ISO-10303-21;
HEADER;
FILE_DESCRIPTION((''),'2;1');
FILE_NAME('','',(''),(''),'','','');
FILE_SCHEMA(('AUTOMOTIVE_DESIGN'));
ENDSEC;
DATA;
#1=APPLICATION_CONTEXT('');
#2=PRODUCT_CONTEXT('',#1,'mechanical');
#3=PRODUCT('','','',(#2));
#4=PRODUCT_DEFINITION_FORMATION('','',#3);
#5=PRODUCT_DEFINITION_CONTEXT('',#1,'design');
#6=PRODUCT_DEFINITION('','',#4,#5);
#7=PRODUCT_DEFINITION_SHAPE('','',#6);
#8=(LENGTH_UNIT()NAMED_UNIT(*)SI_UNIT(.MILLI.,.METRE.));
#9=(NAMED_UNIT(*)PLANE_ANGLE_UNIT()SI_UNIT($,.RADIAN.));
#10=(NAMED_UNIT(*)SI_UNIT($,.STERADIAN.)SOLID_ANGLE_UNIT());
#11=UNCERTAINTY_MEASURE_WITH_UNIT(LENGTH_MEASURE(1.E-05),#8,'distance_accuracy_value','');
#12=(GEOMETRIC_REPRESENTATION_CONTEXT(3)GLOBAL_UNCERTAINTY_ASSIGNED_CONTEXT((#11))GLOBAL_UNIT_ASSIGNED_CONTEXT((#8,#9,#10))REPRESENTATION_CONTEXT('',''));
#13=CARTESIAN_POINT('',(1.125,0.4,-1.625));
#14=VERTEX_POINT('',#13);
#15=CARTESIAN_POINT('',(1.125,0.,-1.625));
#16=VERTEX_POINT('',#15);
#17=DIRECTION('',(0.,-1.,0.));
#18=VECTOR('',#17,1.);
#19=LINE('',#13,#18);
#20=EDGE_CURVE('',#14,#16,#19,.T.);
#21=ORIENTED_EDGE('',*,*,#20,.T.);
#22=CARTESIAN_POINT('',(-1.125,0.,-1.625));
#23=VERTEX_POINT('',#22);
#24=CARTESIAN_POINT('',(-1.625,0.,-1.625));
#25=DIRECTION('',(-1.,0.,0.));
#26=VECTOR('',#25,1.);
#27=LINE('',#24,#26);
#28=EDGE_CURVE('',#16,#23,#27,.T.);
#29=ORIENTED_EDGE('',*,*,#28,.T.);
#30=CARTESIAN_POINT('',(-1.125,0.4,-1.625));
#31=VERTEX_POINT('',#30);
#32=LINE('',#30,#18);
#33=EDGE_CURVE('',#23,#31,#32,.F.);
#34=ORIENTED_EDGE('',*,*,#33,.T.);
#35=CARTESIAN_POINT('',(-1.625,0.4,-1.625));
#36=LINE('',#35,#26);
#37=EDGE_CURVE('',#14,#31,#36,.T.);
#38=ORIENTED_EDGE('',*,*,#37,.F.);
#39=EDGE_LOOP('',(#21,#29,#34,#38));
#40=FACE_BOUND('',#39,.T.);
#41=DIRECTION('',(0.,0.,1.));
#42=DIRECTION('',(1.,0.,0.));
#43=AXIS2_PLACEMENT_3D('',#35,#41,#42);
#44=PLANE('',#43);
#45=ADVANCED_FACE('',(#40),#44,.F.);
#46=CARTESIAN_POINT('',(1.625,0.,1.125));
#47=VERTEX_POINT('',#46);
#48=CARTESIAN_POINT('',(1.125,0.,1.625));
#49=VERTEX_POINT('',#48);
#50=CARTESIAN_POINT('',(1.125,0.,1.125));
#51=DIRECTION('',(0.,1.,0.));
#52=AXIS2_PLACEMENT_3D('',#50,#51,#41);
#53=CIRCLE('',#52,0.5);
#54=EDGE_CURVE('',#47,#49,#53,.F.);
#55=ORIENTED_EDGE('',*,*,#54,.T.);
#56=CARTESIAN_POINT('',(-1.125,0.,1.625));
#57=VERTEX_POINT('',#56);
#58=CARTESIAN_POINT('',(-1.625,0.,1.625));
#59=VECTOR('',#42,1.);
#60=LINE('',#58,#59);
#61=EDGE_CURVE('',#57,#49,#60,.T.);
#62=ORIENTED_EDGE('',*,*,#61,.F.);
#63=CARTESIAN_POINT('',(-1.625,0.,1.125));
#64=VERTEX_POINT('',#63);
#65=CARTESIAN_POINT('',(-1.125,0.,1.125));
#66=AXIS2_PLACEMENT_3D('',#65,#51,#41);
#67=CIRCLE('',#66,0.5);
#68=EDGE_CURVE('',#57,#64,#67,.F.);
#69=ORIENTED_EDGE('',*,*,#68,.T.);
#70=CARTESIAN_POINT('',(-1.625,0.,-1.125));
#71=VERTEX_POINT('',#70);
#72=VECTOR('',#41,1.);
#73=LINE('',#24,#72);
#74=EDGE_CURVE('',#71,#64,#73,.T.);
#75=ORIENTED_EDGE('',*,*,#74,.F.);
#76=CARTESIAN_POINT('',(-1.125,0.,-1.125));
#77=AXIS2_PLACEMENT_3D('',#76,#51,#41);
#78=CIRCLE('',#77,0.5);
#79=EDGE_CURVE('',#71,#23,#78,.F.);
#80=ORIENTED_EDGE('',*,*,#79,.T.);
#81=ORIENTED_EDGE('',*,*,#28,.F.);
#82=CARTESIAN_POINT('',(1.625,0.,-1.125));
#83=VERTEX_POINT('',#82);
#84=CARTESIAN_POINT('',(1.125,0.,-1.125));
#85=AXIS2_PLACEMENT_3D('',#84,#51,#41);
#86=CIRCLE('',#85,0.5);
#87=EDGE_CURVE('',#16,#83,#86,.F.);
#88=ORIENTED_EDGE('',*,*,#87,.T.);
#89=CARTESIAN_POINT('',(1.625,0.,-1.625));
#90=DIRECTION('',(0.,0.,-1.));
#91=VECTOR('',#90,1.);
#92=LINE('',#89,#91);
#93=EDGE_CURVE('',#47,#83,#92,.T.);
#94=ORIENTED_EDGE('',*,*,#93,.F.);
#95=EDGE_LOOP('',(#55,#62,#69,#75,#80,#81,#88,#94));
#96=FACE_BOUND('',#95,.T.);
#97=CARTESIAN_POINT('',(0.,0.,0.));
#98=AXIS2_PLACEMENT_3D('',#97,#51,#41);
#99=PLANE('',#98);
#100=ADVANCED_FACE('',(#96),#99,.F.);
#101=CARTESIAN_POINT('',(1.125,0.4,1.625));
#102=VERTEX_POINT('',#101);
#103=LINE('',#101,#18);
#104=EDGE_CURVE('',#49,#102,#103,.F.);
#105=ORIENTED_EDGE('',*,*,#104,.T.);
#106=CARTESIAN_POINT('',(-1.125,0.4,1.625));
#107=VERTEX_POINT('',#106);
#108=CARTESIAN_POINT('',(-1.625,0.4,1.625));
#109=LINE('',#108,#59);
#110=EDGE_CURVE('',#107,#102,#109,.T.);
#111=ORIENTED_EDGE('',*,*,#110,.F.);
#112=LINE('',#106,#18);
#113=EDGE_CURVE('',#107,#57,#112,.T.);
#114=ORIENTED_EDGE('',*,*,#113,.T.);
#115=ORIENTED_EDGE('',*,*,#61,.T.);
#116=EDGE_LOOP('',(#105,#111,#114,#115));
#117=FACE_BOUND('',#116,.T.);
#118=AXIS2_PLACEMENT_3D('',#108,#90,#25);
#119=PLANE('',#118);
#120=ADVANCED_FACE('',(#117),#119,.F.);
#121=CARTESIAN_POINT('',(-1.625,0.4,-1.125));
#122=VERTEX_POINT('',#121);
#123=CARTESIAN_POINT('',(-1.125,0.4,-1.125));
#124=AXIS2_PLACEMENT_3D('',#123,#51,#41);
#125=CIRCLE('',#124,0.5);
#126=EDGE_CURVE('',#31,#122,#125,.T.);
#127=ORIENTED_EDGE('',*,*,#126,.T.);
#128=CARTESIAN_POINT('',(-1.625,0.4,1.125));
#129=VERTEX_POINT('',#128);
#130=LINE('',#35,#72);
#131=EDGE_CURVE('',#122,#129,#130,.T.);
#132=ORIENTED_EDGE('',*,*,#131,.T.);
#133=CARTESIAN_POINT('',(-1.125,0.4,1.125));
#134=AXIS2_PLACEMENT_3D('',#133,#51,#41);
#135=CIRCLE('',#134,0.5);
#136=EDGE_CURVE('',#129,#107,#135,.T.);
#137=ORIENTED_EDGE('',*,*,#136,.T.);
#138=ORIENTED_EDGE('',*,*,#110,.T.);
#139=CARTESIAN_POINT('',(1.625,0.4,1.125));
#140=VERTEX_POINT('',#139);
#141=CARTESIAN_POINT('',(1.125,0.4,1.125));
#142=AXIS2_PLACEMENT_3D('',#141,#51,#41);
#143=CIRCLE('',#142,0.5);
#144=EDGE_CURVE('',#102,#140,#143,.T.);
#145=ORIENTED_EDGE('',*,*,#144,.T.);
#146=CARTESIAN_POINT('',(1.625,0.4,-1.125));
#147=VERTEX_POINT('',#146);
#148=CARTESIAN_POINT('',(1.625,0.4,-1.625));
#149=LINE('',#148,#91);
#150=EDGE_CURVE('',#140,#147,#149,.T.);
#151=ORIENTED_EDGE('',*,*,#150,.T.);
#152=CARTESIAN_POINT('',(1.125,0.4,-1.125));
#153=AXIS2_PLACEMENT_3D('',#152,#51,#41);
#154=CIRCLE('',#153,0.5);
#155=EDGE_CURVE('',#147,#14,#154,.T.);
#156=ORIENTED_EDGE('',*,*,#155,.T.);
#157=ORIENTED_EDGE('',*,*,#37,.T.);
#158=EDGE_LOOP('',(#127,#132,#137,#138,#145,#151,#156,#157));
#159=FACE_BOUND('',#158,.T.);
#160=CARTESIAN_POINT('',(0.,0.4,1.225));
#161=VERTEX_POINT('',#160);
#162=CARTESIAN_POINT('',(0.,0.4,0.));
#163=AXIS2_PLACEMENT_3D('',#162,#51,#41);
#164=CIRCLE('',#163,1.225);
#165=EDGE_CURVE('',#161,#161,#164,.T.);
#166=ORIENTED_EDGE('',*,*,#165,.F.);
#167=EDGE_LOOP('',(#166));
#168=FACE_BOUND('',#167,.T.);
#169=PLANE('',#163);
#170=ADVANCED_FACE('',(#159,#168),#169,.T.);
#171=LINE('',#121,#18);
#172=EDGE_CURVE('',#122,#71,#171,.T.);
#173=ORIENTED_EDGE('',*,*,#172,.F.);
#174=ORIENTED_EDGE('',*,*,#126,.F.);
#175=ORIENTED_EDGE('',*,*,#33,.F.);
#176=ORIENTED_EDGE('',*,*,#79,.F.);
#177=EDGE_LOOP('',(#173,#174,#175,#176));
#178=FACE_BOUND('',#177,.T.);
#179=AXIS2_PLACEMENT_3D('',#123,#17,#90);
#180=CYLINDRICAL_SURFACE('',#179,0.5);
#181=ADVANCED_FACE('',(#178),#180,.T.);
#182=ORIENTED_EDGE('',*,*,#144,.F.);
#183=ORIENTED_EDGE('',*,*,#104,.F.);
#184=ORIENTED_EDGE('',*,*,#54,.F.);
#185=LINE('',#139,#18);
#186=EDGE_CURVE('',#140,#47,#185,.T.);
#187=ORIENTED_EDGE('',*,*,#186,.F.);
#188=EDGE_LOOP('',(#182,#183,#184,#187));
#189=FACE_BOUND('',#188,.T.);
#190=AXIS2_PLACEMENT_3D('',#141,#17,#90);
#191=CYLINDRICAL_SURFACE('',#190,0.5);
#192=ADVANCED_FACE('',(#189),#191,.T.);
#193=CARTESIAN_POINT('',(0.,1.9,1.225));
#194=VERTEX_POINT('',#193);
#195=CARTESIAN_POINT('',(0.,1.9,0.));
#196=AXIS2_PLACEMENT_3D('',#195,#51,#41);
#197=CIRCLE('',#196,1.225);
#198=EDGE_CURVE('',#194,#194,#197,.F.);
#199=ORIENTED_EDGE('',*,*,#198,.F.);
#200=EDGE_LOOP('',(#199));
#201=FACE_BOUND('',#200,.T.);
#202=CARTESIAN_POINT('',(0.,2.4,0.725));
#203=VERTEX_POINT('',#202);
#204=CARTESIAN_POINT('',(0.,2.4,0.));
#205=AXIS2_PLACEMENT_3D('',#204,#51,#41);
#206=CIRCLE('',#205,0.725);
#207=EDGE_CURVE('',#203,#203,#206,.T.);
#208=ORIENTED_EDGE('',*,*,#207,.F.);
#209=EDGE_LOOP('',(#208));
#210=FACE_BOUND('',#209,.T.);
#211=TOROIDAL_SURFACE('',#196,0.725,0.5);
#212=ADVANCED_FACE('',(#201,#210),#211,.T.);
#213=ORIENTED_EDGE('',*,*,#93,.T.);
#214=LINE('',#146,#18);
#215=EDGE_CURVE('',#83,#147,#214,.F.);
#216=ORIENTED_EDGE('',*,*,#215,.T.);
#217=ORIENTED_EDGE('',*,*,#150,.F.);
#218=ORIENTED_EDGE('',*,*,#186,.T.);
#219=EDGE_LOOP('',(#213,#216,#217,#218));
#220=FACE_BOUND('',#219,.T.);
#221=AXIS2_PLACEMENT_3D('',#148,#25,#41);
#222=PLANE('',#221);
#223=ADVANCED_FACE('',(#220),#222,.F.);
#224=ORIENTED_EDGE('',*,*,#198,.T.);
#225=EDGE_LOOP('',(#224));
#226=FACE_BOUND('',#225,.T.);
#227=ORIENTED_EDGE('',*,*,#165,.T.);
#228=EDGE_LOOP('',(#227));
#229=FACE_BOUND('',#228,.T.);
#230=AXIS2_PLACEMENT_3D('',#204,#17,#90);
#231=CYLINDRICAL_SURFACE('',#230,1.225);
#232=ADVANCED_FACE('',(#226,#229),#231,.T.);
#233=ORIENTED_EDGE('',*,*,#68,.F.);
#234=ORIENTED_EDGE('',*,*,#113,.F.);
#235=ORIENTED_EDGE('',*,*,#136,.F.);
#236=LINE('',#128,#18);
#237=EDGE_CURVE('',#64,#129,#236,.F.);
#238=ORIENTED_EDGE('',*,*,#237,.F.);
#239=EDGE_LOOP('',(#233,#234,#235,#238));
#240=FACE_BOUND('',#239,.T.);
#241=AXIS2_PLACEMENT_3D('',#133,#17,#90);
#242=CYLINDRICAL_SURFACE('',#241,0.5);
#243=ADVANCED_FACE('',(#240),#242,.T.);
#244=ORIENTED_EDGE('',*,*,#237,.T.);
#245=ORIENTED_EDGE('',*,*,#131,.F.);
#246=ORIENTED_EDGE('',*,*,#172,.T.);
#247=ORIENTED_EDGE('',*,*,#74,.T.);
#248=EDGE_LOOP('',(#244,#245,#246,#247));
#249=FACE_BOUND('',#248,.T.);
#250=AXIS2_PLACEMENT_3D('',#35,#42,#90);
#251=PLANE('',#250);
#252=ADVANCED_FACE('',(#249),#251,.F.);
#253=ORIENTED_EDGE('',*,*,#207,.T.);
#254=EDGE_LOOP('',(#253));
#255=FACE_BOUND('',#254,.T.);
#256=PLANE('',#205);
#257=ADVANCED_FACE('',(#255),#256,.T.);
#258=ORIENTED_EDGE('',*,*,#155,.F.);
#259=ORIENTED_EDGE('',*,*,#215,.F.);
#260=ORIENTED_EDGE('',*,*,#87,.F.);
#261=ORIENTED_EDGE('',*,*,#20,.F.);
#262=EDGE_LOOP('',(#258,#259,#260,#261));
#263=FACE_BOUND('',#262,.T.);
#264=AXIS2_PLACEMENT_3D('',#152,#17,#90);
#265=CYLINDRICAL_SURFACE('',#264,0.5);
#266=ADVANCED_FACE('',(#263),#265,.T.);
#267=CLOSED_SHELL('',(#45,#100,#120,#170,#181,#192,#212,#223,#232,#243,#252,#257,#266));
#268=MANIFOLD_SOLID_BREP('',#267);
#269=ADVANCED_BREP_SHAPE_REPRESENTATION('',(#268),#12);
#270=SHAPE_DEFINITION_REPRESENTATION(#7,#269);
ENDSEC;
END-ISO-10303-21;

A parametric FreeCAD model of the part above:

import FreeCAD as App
import Part
import Sketcher
from FreeCAD import Vector
Q = App.Units.Quantity


def edges_at(feature, points):
    """Names of the edges that pass closest to the given points."""
    edges = feature.Shape.Edges
    near = lambda p: min(range(len(edges)), key=lambda i: edges[i].distToShape(Part.Vertex(*p))[0])
    return sorted({f"Edge{near(p) + 1}" for p in points})

doc = App.newDocument("Part")
body = doc.addObject("PartDesign::Body", "Body")

sketch1 = body.newObject("Sketcher::SketchObject", "Sketch")
sketch1.AttachmentSupport = (doc.getObject("XZ_Plane"), [""])
sketch1.MapMode = "FlatFace"
sketch1.addGeometry([
    Part.LineSegment(Vector(-1.6, -1.6, 0), Vector(-1.6, 1.6, 0)),
    Part.LineSegment(Vector(-1.6, 1.6, 0), Vector(1.6, 1.6, 0)),
    Part.LineSegment(Vector(1.6, 1.6, 0), Vector(1.6, -1.6, 0)),
    Part.LineSegment(Vector(1.6, -1.6, 0), Vector(-1.6, -1.6, 0)),
], False)
sketch1.addConstraint([
    Sketcher.Constraint("Coincident", 0, 2, 1, 1),
    Sketcher.Constraint("Coincident", 1, 2, 2, 1),
    Sketcher.Constraint("Coincident", 2, 2, 3, 1),
    Sketcher.Constraint("Coincident", 3, 2, 0, 1),
    Sketcher.Constraint("Vertical", 0),
    Sketcher.Constraint("Horizontal", 1),
    Sketcher.Constraint("Vertical", 2),
    Sketcher.Constraint("Horizontal", 3),
    Sketcher.Constraint("Symmetric", 0, 2, 2, 2, -1, 1),
    Sketcher.Constraint("Equal", 3, 0),
    Sketcher.Constraint("DistanceX", 1, 1, 1, 2, Q("3.25 mm")),
])
pad1 = body.newObject("PartDesign::Pad", "Pad")
pad1.Profile = sketch1
pad1.Length = 0.4
pad1.Reversed = True

sketch2 = body.newObject("Sketcher::SketchObject", "Sketch001")
sketch2.AttachmentSupport = (doc.getObject("XZ_Plane"), [""])
sketch2.MapMode = "FlatFace"
sketch2.AttachmentOffset = App.Placement(Vector(0, 0, -0.4), App.Rotation())
sketch2.addGeometry(Part.Circle(Vector(0, 0, 0), Vector(0, 0, 1), 1.2), False)
sketch2.addConstraint([
    Sketcher.Constraint("Coincident", 0, 3, -1, 1),
    Sketcher.Constraint("Diameter", 0, Q("2.45 mm")),
])
pad2 = body.newObject("PartDesign::Pad", "Pad001")
pad2.Profile = sketch2
pad2.Length = 2
pad2.Reversed = True
doc.recompute()

fillet = body.newObject("PartDesign::Fillet", "Fillet")
fillet.Base = (pad2, edges_at(pad2, [(0, 2.4, -1.225)]))
fillet.Radius = 0.5
doc.recompute()

fillet2 = body.newObject("PartDesign::Fillet", "Fillet001")
fillet2.Base = (fillet, edges_at(fillet, [
    (1.625, 0.2, 1.625),
    (-1.625, 0.2, 1.625),
    (-1.625, 0.2, -1.625),
    (1.625, 0.2, -1.625),
]))
fillet2.Radius = 0.5

doc.recompute()
